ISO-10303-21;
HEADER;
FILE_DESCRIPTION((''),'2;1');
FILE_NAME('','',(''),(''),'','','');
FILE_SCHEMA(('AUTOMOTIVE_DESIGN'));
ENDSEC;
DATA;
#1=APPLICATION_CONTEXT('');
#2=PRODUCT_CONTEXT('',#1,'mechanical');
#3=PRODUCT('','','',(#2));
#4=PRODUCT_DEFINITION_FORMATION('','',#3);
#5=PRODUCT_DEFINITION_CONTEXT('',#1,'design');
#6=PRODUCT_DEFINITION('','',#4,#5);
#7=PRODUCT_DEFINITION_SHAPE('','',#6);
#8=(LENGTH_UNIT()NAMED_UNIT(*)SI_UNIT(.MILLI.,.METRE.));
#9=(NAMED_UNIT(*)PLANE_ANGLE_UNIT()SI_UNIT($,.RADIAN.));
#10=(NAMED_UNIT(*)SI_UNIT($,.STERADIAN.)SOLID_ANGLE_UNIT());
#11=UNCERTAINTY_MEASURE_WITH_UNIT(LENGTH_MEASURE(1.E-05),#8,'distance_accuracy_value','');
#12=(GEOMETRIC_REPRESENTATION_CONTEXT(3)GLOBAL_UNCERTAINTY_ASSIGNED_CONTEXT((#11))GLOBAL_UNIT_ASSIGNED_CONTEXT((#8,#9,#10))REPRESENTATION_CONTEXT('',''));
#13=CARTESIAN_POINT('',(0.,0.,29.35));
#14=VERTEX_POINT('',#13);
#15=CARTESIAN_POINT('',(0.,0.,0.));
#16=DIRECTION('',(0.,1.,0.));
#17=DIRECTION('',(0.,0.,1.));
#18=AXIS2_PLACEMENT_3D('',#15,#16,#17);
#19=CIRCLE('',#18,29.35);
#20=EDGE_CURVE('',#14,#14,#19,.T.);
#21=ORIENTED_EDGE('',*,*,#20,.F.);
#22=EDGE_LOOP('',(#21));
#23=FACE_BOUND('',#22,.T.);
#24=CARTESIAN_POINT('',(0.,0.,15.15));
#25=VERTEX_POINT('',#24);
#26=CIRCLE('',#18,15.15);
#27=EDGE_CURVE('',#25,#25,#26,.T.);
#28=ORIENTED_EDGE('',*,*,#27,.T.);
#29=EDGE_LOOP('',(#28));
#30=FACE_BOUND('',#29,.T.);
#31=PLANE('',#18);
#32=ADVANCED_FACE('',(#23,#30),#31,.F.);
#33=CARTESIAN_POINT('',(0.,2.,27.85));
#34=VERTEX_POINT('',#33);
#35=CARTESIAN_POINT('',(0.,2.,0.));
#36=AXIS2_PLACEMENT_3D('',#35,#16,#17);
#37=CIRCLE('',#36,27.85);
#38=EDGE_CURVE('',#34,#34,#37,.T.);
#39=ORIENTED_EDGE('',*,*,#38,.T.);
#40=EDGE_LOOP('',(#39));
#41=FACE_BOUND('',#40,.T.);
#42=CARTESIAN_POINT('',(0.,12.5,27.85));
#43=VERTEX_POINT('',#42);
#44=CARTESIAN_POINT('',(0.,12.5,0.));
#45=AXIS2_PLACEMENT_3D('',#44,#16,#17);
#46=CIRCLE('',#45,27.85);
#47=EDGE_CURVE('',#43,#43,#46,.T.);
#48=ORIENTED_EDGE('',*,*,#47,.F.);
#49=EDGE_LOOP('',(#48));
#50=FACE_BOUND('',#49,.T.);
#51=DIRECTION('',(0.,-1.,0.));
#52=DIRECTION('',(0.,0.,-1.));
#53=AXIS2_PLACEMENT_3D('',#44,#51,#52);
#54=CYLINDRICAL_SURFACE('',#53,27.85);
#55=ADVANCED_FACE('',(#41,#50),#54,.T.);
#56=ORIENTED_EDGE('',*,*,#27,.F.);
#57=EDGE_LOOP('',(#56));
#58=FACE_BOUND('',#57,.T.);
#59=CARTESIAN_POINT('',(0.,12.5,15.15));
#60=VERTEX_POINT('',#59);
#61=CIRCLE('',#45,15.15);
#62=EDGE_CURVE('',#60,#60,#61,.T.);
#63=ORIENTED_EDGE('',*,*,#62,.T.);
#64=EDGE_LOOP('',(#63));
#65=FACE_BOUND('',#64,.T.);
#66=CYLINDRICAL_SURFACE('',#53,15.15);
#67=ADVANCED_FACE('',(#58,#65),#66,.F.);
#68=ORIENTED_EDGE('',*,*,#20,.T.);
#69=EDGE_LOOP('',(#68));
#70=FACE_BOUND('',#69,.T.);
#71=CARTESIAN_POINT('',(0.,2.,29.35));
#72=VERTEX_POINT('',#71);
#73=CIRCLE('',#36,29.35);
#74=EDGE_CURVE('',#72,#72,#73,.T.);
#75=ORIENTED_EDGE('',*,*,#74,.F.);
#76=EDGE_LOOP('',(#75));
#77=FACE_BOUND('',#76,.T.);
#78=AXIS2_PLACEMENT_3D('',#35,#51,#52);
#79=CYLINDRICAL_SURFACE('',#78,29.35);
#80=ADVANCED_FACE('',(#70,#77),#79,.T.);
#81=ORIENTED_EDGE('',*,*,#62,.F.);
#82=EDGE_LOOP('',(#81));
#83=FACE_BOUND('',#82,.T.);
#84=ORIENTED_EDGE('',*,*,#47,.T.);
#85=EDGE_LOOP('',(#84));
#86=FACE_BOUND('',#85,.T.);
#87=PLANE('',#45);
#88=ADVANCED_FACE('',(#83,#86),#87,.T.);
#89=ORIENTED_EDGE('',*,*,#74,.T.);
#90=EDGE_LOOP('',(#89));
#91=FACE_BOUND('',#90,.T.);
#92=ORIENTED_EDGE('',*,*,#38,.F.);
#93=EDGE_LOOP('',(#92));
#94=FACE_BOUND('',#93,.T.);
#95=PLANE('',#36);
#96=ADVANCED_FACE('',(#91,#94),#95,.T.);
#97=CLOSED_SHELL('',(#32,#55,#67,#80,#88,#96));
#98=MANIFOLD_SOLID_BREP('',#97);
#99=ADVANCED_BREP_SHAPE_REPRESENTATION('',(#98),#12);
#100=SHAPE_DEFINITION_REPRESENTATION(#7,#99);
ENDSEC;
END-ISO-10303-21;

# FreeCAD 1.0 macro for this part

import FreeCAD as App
import Part
import Sketcher
Q = App.Units.Quantity

doc = App.newDocument("Part")
body = doc.addObject("PartDesign::Body", "Body")

sketch1 = body.newObject("Sketcher::SketchObject", "Sketch")
sketch1.AttachmentSupport = (doc.getObject("XZ_Plane"), [""])
sketch1.MapMode = "FlatFace"
sketch1.addGeometry(Part.Circle(App.Vector(0, 0, 0), App.Vector(0, 0, 1), 27.85), False)
sketch1.addGeometry(Part.Circle(App.Vector(0, 0, 0), App.Vector(0, 0, 1), 15.15), False)
sketch1.addConstraint(Sketcher.Constraint("Coincident", 0, 3, -1, 1))
sketch1.addConstraint(Sketcher.Constraint("Coincident", 1, 3, -1, 1))
sketch1.addConstraint(Sketcher.Constraint("Diameter", 0, Q("55.7 mm")))
sketch1.addConstraint(Sketcher.Constraint("Diameter", 1, Q("30.3 mm")))
pad1 = body.newObject("PartDesign::Pad", "Pad")
pad1.Profile = sketch1
pad1.Length = 12.5
pad1.Reversed = True

sketch2 = body.newObject("Sketcher::SketchObject", "Sketch001")
sketch2.AttachmentSupport = (doc.getObject("XZ_Plane"), [""])
sketch2.MapMode = "FlatFace"
sketch2.addGeometry(Part.Circle(App.Vector(0, 0, 0), App.Vector(0, 0, 1), 29.35), False)
sketch2.addGeometry(Part.Circle(App.Vector(0, 0, 0), App.Vector(0, 0, 1), 27.85), False)
sketch2.addConstraint(Sketcher.Constraint("Coincident", 0, 3, -1, 1))
sketch2.addConstraint(Sketcher.Constraint("Coincident", 1, 3, -1, 1))
sketch2.addConstraint(Sketcher.Constraint("Diameter", 0, Q("58.7 mm")))
sketch2.addConstraint(Sketcher.Constraint("Diameter", 1, Q("55.7 mm")))
pad2 = body.newObject("PartDesign::Pad", "Pad001")
pad2.Profile = sketch2
pad2.Length = 2
pad2.Reversed = True

doc.recompute()
